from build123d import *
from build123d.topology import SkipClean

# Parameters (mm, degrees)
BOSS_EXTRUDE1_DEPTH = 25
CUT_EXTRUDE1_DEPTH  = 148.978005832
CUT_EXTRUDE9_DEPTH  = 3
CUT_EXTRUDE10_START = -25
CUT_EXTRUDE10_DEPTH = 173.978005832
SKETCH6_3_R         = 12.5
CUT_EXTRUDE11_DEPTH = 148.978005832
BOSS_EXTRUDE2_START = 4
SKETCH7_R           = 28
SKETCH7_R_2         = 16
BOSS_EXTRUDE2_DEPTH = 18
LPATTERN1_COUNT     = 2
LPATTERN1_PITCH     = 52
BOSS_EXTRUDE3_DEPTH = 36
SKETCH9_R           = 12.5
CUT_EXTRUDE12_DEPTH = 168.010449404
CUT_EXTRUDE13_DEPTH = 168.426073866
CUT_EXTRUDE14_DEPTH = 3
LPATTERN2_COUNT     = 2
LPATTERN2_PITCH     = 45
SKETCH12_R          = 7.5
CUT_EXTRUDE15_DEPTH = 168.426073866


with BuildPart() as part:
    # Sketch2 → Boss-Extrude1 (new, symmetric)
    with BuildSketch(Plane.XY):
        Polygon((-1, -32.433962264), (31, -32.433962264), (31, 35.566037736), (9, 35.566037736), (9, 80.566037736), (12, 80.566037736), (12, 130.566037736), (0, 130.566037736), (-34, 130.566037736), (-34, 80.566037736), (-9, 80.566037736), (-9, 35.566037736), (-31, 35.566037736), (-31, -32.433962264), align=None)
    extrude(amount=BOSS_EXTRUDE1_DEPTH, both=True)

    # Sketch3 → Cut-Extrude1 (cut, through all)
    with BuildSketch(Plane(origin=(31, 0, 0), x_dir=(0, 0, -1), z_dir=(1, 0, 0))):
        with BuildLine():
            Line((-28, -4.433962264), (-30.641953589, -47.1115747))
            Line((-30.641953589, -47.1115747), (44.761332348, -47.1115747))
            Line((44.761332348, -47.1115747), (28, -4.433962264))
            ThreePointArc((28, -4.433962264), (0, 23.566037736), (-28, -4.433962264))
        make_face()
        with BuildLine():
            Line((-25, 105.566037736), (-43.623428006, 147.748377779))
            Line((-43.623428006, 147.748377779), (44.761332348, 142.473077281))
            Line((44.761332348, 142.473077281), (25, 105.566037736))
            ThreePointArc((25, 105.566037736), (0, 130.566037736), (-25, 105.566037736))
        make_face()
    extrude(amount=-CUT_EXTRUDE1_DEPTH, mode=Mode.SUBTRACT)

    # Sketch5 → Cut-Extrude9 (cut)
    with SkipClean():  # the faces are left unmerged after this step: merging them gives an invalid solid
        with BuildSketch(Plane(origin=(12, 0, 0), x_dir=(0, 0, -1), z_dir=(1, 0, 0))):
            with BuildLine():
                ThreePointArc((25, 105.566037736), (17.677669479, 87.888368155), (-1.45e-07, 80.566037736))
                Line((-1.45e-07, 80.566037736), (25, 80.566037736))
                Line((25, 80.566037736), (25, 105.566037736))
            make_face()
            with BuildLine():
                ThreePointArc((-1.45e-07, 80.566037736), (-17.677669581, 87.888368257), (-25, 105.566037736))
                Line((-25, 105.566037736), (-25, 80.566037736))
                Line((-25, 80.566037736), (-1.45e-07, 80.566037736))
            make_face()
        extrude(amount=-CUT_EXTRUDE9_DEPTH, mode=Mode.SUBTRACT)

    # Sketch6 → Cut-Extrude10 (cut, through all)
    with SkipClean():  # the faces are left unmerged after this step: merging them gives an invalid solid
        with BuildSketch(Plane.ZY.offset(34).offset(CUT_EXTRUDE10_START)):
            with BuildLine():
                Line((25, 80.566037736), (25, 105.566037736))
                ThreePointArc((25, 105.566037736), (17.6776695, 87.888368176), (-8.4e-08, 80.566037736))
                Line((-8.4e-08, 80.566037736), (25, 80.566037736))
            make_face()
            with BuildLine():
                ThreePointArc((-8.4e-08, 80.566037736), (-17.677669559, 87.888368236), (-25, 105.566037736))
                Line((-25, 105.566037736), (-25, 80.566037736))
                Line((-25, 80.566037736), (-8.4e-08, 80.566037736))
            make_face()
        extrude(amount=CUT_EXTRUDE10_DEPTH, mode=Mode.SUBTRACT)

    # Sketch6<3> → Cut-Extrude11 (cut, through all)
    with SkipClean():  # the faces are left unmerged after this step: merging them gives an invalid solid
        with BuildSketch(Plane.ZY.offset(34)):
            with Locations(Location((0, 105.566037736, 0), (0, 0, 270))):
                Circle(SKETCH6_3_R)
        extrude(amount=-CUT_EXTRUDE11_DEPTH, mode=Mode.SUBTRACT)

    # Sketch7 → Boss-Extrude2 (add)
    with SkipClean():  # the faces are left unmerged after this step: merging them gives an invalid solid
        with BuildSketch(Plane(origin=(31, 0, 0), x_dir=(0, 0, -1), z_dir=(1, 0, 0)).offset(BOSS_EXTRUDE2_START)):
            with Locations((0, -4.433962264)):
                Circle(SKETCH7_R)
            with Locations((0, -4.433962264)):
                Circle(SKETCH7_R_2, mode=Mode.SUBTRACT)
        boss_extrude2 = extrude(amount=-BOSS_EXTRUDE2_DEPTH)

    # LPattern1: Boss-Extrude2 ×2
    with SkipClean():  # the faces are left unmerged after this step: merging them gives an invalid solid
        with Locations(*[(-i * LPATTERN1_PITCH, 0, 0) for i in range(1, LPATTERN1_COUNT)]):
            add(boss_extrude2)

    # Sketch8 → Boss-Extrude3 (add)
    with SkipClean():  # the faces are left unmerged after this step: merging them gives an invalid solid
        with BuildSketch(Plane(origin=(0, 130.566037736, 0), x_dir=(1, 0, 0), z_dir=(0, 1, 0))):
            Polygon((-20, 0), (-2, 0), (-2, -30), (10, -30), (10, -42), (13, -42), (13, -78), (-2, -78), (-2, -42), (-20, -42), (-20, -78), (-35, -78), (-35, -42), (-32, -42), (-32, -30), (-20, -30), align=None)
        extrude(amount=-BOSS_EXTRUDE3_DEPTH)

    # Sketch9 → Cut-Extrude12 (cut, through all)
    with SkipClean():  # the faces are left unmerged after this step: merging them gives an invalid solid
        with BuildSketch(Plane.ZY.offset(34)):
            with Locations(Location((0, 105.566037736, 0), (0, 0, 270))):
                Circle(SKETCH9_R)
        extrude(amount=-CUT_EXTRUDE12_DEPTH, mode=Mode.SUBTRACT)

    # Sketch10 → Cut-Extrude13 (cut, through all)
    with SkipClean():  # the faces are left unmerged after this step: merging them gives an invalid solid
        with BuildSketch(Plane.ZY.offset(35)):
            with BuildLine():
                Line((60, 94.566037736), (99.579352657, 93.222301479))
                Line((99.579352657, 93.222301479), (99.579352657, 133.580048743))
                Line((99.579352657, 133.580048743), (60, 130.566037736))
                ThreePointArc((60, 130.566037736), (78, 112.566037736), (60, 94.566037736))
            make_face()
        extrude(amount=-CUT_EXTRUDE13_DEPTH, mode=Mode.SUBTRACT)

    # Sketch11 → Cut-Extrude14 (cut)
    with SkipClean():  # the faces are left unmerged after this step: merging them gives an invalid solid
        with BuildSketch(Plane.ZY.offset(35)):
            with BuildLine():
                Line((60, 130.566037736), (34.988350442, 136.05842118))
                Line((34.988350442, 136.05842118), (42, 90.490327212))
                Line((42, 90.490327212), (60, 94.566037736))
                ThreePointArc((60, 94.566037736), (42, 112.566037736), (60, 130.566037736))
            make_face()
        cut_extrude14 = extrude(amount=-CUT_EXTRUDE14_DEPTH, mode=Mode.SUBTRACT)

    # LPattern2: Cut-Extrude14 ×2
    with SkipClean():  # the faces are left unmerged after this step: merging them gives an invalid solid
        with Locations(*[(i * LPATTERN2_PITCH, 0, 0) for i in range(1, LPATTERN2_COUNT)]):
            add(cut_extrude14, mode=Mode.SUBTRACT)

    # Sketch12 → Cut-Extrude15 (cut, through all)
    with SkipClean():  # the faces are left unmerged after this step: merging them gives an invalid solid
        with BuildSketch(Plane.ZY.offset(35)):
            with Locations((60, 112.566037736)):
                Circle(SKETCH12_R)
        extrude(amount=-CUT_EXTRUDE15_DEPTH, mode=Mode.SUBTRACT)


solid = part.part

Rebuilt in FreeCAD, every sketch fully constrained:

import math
import FreeCAD as App
import Part
import Sketcher
from FreeCAD import Vector
Q = App.Units.Quantity


def add_polygon(sketch, points):
    """Adds a closed chain of lines whose ends are joined by coincident constraints."""
    first, n = sketch.GeometryCount, len(points)
    for a, b in zip(points, points[1:] + points[:1]):
        sketch.addGeometry(Part.LineSegment(App.Vector(*a, 0), App.Vector(*b, 0)), False)
    for i in range(n):
        sketch.addConstraint(Sketcher.Constraint("Coincident", first + i, 2, first + (i + 1) % n, 1))

doc = App.newDocument("Part")
body = doc.addObject("PartDesign::Body", "Body")

# Sketch on XY plane
sketch1 = doc.addObject("Sketcher::SketchObject", "Sketch")
body.addObject(sketch1)
sketch1.AttachmentSupport = (doc.XY_Plane, [""])
sketch1.MapMode = "FlatFace"
add_polygon(sketch1, [(31, -32.4), (31, 35.6), (9, 35.6), (9, 80.6), (12, 80.6), (12, 130.6), (-34, 130.6), (-34, 80.6), (-9, 80.6), (-9, 35.6), (-31, 35.6), (-31, -32.4)])  # lines 0-11
sketch1.addConstraint(Sketcher.Constraint("Vertical", 0))
sketch1.addConstraint(Sketcher.Constraint("Horizontal", 1))
sketch1.addConstraint(Sketcher.Constraint("Vertical", 2))
sketch1.addConstraint(Sketcher.Constraint("Horizontal", 3))
sketch1.addConstraint(Sketcher.Constraint("Vertical", 4))
sketch1.addConstraint(Sketcher.Constraint("Horizontal", 5))
sketch1.addConstraint(Sketcher.Constraint("Vertical", 6))
sketch1.addConstraint(Sketcher.Constraint("Horizontal", 7))
sketch1.addConstraint(Sketcher.Constraint("Vertical", 8))
sketch1.addConstraint(Sketcher.Constraint("Horizontal", 9))
sketch1.addConstraint(Sketcher.Constraint("Vertical", 10))
sketch1.addConstraint(Sketcher.Constraint("Horizontal", 11))
sketch1.addConstraint(Sketcher.Constraint("Symmetric", 2, 2, 7, 2, -2))
sketch1.addConstraint(Sketcher.Constraint("Symmetric", 0, 2, 9, 2, -2))
sketch1.addConstraint(Sketcher.Constraint("DistanceX", 1, 2, 1, 1, Q("22 mm")))
sketch1.addConstraint(Sketcher.Constraint("DistanceX", 3, 1, 3, 2, Q("3 mm")))
sketch1.addConstraint(Sketcher.Constraint("DistanceX", 5, 2, 5, 1, Q("46 mm")))
sketch1.addConstraint(Sketcher.Constraint("DistanceX", 7, 1, 7, 2, Q("25 mm")))
sketch1.addConstraint(Sketcher.Constraint("DistanceY", 0, 1, 0, 2, Q("68 mm")))
sketch1.addConstraint(Sketcher.Constraint("DistanceY", 2, 1, 2, 2, Q("45 mm")))
sketch1.addConstraint(Sketcher.Constraint("DistanceY", 4, 1, 4, 2, Q("50 mm")))
sketch1.addConstraint(Sketcher.Constraint("DistanceY", -1, 1, 0, 2, Q("35.566038 mm")))
pad1 = doc.addObject("PartDesign::Pad", "Pad")
body.addObject(pad1)
pad1.Profile = sketch1
pad1.Length = 50
pad1.Midplane = True

# Sketch on YZ plane
sketch2 = doc.addObject("Sketcher::SketchObject", "Sketch001")
body.addObject(sketch2)
sketch2.AttachmentSupport = (doc.YZ_Plane, [""])
sketch2.MapMode = "FlatFace"
sketch2.AttachmentOffset = App.Placement(Vector(0, 0, 31), App.Rotation())
sketch2.addGeometry(Part.LineSegment(Vector(-4, 28, 0), Vector(-47, 31, 0)), False)
sketch2.addGeometry(Part.LineSegment(Vector(-47, 31, 0), Vector(-47, -45, 0)), False)
sketch2.addGeometry(Part.LineSegment(Vector(-47, -45, 0), Vector(-4, -28, 0)), False)
sketch2.addGeometry(Part.ArcOfCircle(Part.Circle(Vector(-4, 0, 0), Vector(0, 0, 1), 28), math.radians(-90), math.radians(90)), False)
sketch2.addGeometry(Part.LineSegment(Vector(148, 44, 0), Vector(106, 25, 0)), False)
sketch2.addGeometry(Part.ArcOfCircle(Part.Circle(Vector(106, 0, 0), Vector(0, 0, 1), 25), math.radians(-90), math.radians(90)), False)
sketch2.addGeometry(Part.LineSegment(Vector(106, -25, 0), Vector(142, -45, 0)), False)
sketch2.addGeometry(Part.LineSegment(Vector(142, -45, 0), Vector(148, 44, 0)), False)
sketch2.addConstraint(Sketcher.Constraint("Coincident", 0, 2, 1, 1))
sketch2.addConstraint(Sketcher.Constraint("Coincident", 1, 2, 2, 1))
sketch2.addConstraint(Sketcher.Constraint("Coincident", 2, 2, 3, 1))
sketch2.addConstraint(Sketcher.Constraint("Coincident", 3, 2, 0, 1))
sketch2.addConstraint(Sketcher.Constraint("Coincident", 4, 2, 5, 2))
sketch2.addConstraint(Sketcher.Constraint("Coincident", 5, 1, 6, 1))
sketch2.addConstraint(Sketcher.Constraint("Coincident", 6, 2, 7, 1))
sketch2.addConstraint(Sketcher.Constraint("Coincident", 7, 2, 4, 1))
sketch2.addConstraint(Sketcher.Constraint("Vertical", 1))
sketch2.addConstraint(Sketcher.Constraint("Symmetric", 2, 2, 3, 2, -1))
sketch2.addConstraint(Sketcher.Constraint("Symmetric", 4, 2, 5, 1, -1))
sketch2.addConstraint(Sketcher.Constraint("Horizontal", 1, 2, 6, 2))
sketch2.addConstraint(Sketcher.Constraint("Vertical", 3, 3, 2, 2))
sketch2.addConstraint(Sketcher.Constraint("Vertical", 5, 3, 4, 2))
sketch2.addConstraint(Sketcher.Constraint("Radius", 3, Q("28 mm")))
sketch2.addConstraint(Sketcher.Constraint("Radius", 5, Q("25 mm")))
sketch2.addConstraint(Sketcher.Constraint("DistanceX", 3, 3, 5, 3, Q("110 mm")))
sketch2.addConstraint(Sketcher.Constraint("DistanceX", 6, 2, 7, 2, Q("5.2753 mm")))
sketch2.addConstraint(Sketcher.Constraint("Distance", 0, Q("42.759309 mm")))
sketch2.addConstraint(Sketcher.Constraint("Distance", 4, Q("46.11054 mm")))
sketch2.addConstraint(Sketcher.Constraint("Distance", 6, Q("41.864541 mm")))
sketch2.addConstraint(Sketcher.Constraint("Distance", 7, Q("88.54205 mm")))
sketch2.addConstraint(Sketcher.Constraint("DistanceY", 1, 2, 1, 1, Q("75.403286 mm")))
sketch2.addConstraint(Sketcher.Constraint("DistanceX", 3, 3, -1, 1, Q("4.433962 mm")))
pocket1 = doc.addObject("PartDesign::Pocket", "Pocket")
body.addObject(pocket1)
pocket1.Profile = sketch2
pocket1.Type = "ThroughAll"

# Sketch on YZ plane
sketch3 = doc.addObject("Sketcher::SketchObject", "Sketch002")
body.addObject(sketch3)
sketch3.AttachmentSupport = (doc.YZ_Plane, [""])
sketch3.MapMode = "FlatFace"
sketch3.AttachmentOffset = App.Placement(Vector(0, 0, 12), App.Rotation())
sketch3.addGeometry(Part.ArcOfCircle(Part.Circle(Vector(106, 0, 0), Vector(0, 0, 1), 25), math.radians(180), math.radians(270)), False)
sketch3.addGeometry(Part.LineSegment(Vector(81, 0, 0), Vector(81, -25, 0)), False)
sketch3.addGeometry(Part.LineSegment(Vector(81, -25, 0), Vector(106, -25, 0)), False)
sketch3.addGeometry(Part.ArcOfCircle(Part.Circle(Vector(106, 0, 0), Vector(0, 0, 1), 25), math.radians(90), math.radians(180)), False)
sketch3.addGeometry(Part.LineSegment(Vector(106, 25, 0), Vector(81, 25, 0)), False)
sketch3.addGeometry(Part.LineSegment(Vector(81, 25, 0), Vector(81, 0, 0)), False)
sketch3.addConstraint(Sketcher.Constraint("Tangent", 0, 1, 1, 1))
sketch3.addConstraint(Sketcher.Constraint("Coincident", 1, 2, 2, 1))
sketch3.addConstraint(Sketcher.Constraint("Tangent", 2, 2, 0, 2))
sketch3.addConstraint(Sketcher.Constraint("Tangent", 3, 1, 4, 1))
sketch3.addConstraint(Sketcher.Constraint("Coincident", 4, 2, 5, 1))
sketch3.addConstraint(Sketcher.Constraint("Tangent", 5, 2, 3, 2))
sketch3.addConstraint(Sketcher.Constraint("Vertical", 1))
sketch3.addConstraint(Sketcher.Constraint("Horizontal", 2))
sketch3.addConstraint(Sketcher.Constraint("Horizontal", 4))
sketch3.addConstraint(Sketcher.Constraint("Vertical", 5))
sketch3.addConstraint(Sketcher.Constraint("Coincident", 3, 3, 0, 3))
sketch3.addConstraint(Sketcher.Constraint("Equal", 0, 3))
sketch3.addConstraint(Sketcher.Constraint("PointOnObject", 0, 3, -1))
sketch3.addConstraint(Sketcher.Constraint("Radius", 0, Q("25 mm")))
sketch3.addConstraint(Sketcher.Constraint("DistanceX", -1, 1, 0, 3, Q("105.566038 mm")))
pocket2 = doc.addObject("PartDesign::Pocket", "Pocket001")
body.addObject(pocket2)
pocket2.Profile = sketch3
pocket2.Length = 3

# Sketch on YZ plane
sketch4 = doc.addObject("Sketcher::SketchObject", "Sketch003")
body.addObject(sketch4)
sketch4.AttachmentSupport = (doc.YZ_Plane, [""])
sketch4.MapMode = "FlatFace"
sketch4.AttachmentOffset = App.Placement(Vector(0, 0, -9), App.Rotation())
sketch4.addGeometry(Part.LineSegment(Vector(81, 25, 0), Vector(106, 25, 0)), False)
sketch4.addGeometry(Part.ArcOfCircle(Part.Circle(Vector(106, 0, 0), Vector(0, 0, 1), 25), math.radians(90), math.radians(180)), False)
sketch4.addGeometry(Part.LineSegment(Vector(81, 0, 0), Vector(81, 25, 0)), False)
sketch4.addGeometry(Part.ArcOfCircle(Part.Circle(Vector(106, 0, 0), Vector(0, 0, 1), 25), math.radians(-180), math.radians(-90)), False)
sketch4.addGeometry(Part.LineSegment(Vector(106, -25, 0), Vector(81, -25, 0)), False)
sketch4.addGeometry(Part.LineSegment(Vector(81, -25, 0), Vector(81, 0, 0)), False)
sketch4.addConstraint(Sketcher.Constraint("Tangent", 0, 2, 1, 1))
sketch4.addConstraint(Sketcher.Constraint("Tangent", 1, 2, 2, 1))
sketch4.addConstraint(Sketcher.Constraint("Coincident", 2, 2, 0, 1))
sketch4.addConstraint(Sketcher.Constraint("Tangent", 3, 2, 4, 1))
sketch4.addConstraint(Sketcher.Constraint("Coincident", 4, 2, 5, 1))
sketch4.addConstraint(Sketcher.Constraint("Tangent", 5, 2, 3, 1))
sketch4.addConstraint(Sketcher.Constraint("Horizontal", 0))
sketch4.addConstraint(Sketcher.Constraint("Vertical", 2))
sketch4.addConstraint(Sketcher.Constraint("Horizontal", 4))
sketch4.addConstraint(Sketcher.Constraint("Vertical", 5))
sketch4.addConstraint(Sketcher.Constraint("Coincident", 3, 3, 1, 3))
sketch4.addConstraint(Sketcher.Constraint("Equal", 1, 3))
sketch4.addConstraint(Sketcher.Constraint("PointOnObject", 1, 3, -1))
sketch4.addConstraint(Sketcher.Constraint("Radius", 1, Q("25 mm")))
sketch4.addConstraint(Sketcher.Constraint("DistanceX", -1, 1, 1, 3, Q("105.566038 mm")))
pocket3 = doc.addObject("PartDesign::Pocket", "Pocket002")
body.addObject(pocket3)
pocket3.Profile = sketch4
pocket3.Type = "ThroughAll"

# Sketch on YZ plane
sketch5 = doc.addObject("Sketcher::SketchObject", "Sketch004")
body.addObject(sketch5)
sketch5.AttachmentSupport = (doc.YZ_Plane, [""])
sketch5.MapMode = "FlatFace"
sketch5.AttachmentOffset = App.Placement(Vector(0, 0, -34), App.Rotation())
sketch5.addGeometry(Part.Circle(Vector(106, 0, 0), Vector(0, 0, 1), 12), False)
sketch5.addConstraint(Sketcher.Constraint("PointOnObject", 0, 3, -1))
sketch5.addConstraint(Sketcher.Constraint("Diameter", 0, Q("25 mm")))
sketch5.addConstraint(Sketcher.Constraint("DistanceX", -1, 1, 0, 3, Q("105.566038 mm")))
pocket4 = doc.addObject("PartDesign::Pocket", "Pocket003")
body.addObject(pocket4)
pocket4.Profile = sketch5
pocket4.Type = "ThroughAll"
pocket4.Reversed = True

# Sketch on YZ plane
sketch6 = doc.addObject("Sketcher::SketchObject", "Sketch005")
body.addObject(sketch6)
sketch6.AttachmentSupport = (doc.YZ_Plane, [""])
sketch6.MapMode = "FlatFace"
sketch6.AttachmentOffset = App.Placement(Vector(0, 0, 35), App.Rotation())
sketch6.addGeometry(Part.Circle(Vector(-4, 0, 0), Vector(0, 0, 1), 28), False)
sketch6.addGeometry(Part.Circle(Vector(-4, 0, 0), Vector(0, 0, 1), 16), False)
sketch6.addConstraint(Sketcher.Constraint("Coincident", 1, 3, 0, 3))
sketch6.addConstraint(Sketcher.Constraint("PointOnObject", 0, 3, -1))
sketch6.addConstraint(Sketcher.Constraint("Diameter", 0, Q("56 mm")))
sketch6.addConstraint(Sketcher.Constraint("Diameter", 1, Q("32 mm")))
sketch6.addConstraint(Sketcher.Constraint("DistanceX", 0, 3, -1, 1, Q("4.433962 mm")))
pad2 = doc.addObject("PartDesign::Pad", "Pad001")
body.addObject(pad2)
pad2.Profile = sketch6
pad2.Length = 18
pad2.Reversed = True
doc.recompute()

linearpattern = doc.addObject("PartDesign::LinearPattern", "LinearPattern")
body.addObject(linearpattern)
linearpattern.Originals = [pad2]
linearpattern.Direction = (doc.X_Axis, [""])
linearpattern.Mode = "offset"
linearpattern.Offset = 52
linearpattern.Occurrences = 2
linearpattern.Reversed = True
body.Tip = linearpattern

# Sketch on XZ plane
sketch7 = doc.addObject("Sketcher::SketchObject", "Sketch006")
body.addObject(sketch7)
sketch7.AttachmentSupport = (doc.XZ_Plane, [""])
sketch7.MapMode = "FlatFace"
sketch7.AttachmentOffset = App.Placement(Vector(0, 0, -130.566038), App.Rotation())
add_polygon(sketch7, [(-2, 0), (-20, 0), (-20, 30), (-32, 30), (-32, 42), (-35, 42), (-35, 78), (-20, 78), (-20, 42), (-2, 42), (-2, 78), (13, 78), (13, 42), (10, 42), (10, 30), (-2, 30)])  # lines 0-15
sketch7.addConstraint(Sketcher.Constraint("Horizontal", 0))
sketch7.addConstraint(Sketcher.Constraint("Vertical", 1))
sketch7.addConstraint(Sketcher.Constraint("Horizontal", 2))
sketch7.addConstraint(Sketcher.Constraint("Vertical", 3))
sketch7.addConstraint(Sketcher.Constraint("Horizontal", 4))
sketch7.addConstraint(Sketcher.Constraint("Vertical", 5))
sketch7.addConstraint(Sketcher.Constraint("Horizontal", 6))
sketch7.addConstraint(Sketcher.Constraint("Vertical", 7))
sketch7.addConstraint(Sketcher.Constraint("Horizontal", 8))
sketch7.addConstraint(Sketcher.Constraint("Vertical", 9))
sketch7.addConstraint(Sketcher.Constraint("Horizontal", 10))
sketch7.addConstraint(Sketcher.Constraint("Vertical", 11))
sketch7.addConstraint(Sketcher.Constraint("Horizontal", 12))
sketch7.addConstraint(Sketcher.Constraint("Vertical", 13))
sketch7.addConstraint(Sketcher.Constraint("Horizontal", 14))
sketch7.addConstraint(Sketcher.Constraint("Vertical", 15))
sketch7.addConstraint(Sketcher.Constraint("PointOnObject", 0, 2, -1))
sketch7.addConstraint(Sketcher.Constraint("Horizontal", 4, 2, 7, 2))
sketch7.addConstraint(Sketcher.Constraint("Horizontal", 6, 2, 9, 2))
sketch7.addConstraint(Sketcher.Constraint("Horizontal", 8, 2, 11, 2))
sketch7.addConstraint(Sketcher.Constraint("Horizontal", 2, 2, 13, 2))
sketch7.addConstraint(Sketcher.Constraint("Vertical", 1, 2, 6, 2))
sketch7.addConstraint(Sketcher.Constraint("Vertical", 9, 2, 14, 2))
sketch7.addConstraint(Sketcher.Constraint("Equal", 6, 10))
sketch7.addConstraint(Sketcher.Constraint("Equal", 4, 12))
sketch7.addConstraint(Sketcher.Constraint("Equal", 14, 3))
sketch7.addConstraint(Sketcher.Constraint("DistanceX", 0, 2, 0, 1, Q("18 mm")))
sketch7.addConstraint(Sketcher.Constraint("DistanceX", 2, 2, 2, 1, Q("12 mm")))
sketch7.addConstraint(Sketcher.Constraint("DistanceX", 4, 2, 4, 1, Q("3 mm")))
sketch7.addConstraint(Sketcher.Constraint("DistanceY", 1, 1, 1, 2, Q("30 mm")))
sketch7.addConstraint(Sketcher.Constraint("DistanceY", 5, 1, 5, 2, Q("36 mm")))
sketch7.addConstraint(Sketcher.Constraint("DistanceX", 0, 2, -1, 1, Q("20 mm")))
pad3 = doc.addObject("PartDesign::Pad", "Pad002")
body.addObject(pad3)
pad3.Profile = sketch7
pad3.Length = 36

# Sketch on YZ plane
sketch8 = doc.addObject("Sketcher::SketchObject", "Sketch007")
body.addObject(sketch8)
sketch8.AttachmentSupport = (doc.YZ_Plane, [""])
sketch8.MapMode = "FlatFace"
sketch8.AttachmentOffset = App.Placement(Vector(0, 0, -34), App.Rotation())
sketch8.addGeometry(Part.Circle(Vector(106, 0, 0), Vector(0, 0, 1), 12), False)
sketch8.addConstraint(Sketcher.Constraint("PointOnObject", 0, 3, -1))
sketch8.addConstraint(Sketcher.Constraint("Diameter", 0, Q("25 mm")))
sketch8.addConstraint(Sketcher.Constraint("DistanceX", -1, 1, 0, 3, Q("105.566038 mm")))
pocket5 = doc.addObject("PartDesign::Pocket", "Pocket004")
body.addObject(pocket5)
pocket5.Profile = sketch8
pocket5.Type = "ThroughAll"
pocket5.Reversed = True

# Sketch on YZ plane
sketch9 = doc.addObject("Sketcher::SketchObject", "Sketch008")
body.addObject(sketch9)
sketch9.AttachmentSupport = (doc.YZ_Plane, [""])
sketch9.MapMode = "FlatFace"
sketch9.AttachmentOffset = App.Placement(Vector(0, 0, -35), App.Rotation())
sketch9.addGeometry(Part.LineSegment(Vector(95, 60, 0), Vector(93, 100, 0)), False)
sketch9.addGeometry(Part.LineSegment(Vector(93, 100, 0), Vector(134, 100, 0)), False)
sketch9.addGeometry(Part.LineSegment(Vector(134, 100, 0), Vector(131, 60, 0)), False)
sketch9.addGeometry(Part.ArcOfCircle(Part.Circle(Vector(113, 60, 0), Vector(0, 0, 1), 18), math.radians(0), math.radians(180)), False)
sketch9.addConstraint(Sketcher.Constraint("Coincident", 0, 2, 1, 1))
sketch9.addConstraint(Sketcher.Constraint("Coincident", 1, 2, 2, 1))
sketch9.addConstraint(Sketcher.Constraint("Coincident", 2, 2, 3, 1))
sketch9.addConstraint(Sketcher.Constraint("Coincident", 3, 2, 0, 1))
sketch9.addConstraint(Sketcher.Constraint("Horizontal", 1))
sketch9.addConstraint(Sketcher.Constraint("Horizontal", 3, 3, 2, 2))
sketch9.addConstraint(Sketcher.Constraint("Horizontal", 2, 2, 3, 2))
sketch9.addConstraint(Sketcher.Constraint("Radius", 3, Q("18 mm")))
sketch9.addConstraint(Sketcher.Constraint("DistanceY", -1, 1, 3, 3, Q("60 mm")))
sketch9.addConstraint(Sketcher.Constraint("DistanceX", -1, 1, 0, 2, Q("93.222301 mm")))
sketch9.addConstraint(Sketcher.Constraint("DistanceX", 1, 1, 1, 2, Q("40.357747 mm")))
sketch9.addConstraint(Sketcher.Constraint("DistanceX", 3, 3, 1, 2, Q("21.014011 mm")))
sketch9.addConstraint(Sketcher.Constraint("Distance", 0, Q("39.602156 mm")))
pocket6 = doc.addObject("PartDesign::Pocket", "Pocket005")
body.addObject(pocket6)
pocket6.Profile = sketch9
pocket6.Type = "ThroughAll"
pocket6.Reversed = True

# Sketch on YZ plane
sketch10 = doc.addObject("Sketcher::SketchObject", "Sketch009")
body.addObject(sketch10)
sketch10.AttachmentSupport = (doc.YZ_Plane, [""])
sketch10.MapMode = "FlatFace"
sketch10.AttachmentOffset = App.Placement(Vector(0, 0, -35), App.Rotation())
sketch10.addGeometry(Part.LineSegment(Vector(131, 60, 0), Vector(136, 35, 0)), False)
sketch10.addGeometry(Part.LineSegment(Vector(136, 35, 0), Vector(90, 42, 0)), False)
sketch10.addGeometry(Part.LineSegment(Vector(90, 42, 0), Vector(95, 60, 0)), False)
sketch10.addGeometry(Part.ArcOfCircle(Part.Circle(Vector(113, 60, 0), Vector(0, 0, 1), 18), math.radians(180), math.radians(360)), False)
sketch10.addConstraint(Sketcher.Constraint("Coincident", 0, 2, 1, 1))
sketch10.addConstraint(Sketcher.Constraint("Coincident", 1, 2, 2, 1))
sketch10.addConstraint(Sketcher.Constraint("Coincident", 2, 2, 3, 1))
sketch10.addConstraint(Sketcher.Constraint("Coincident", 3, 2, 0, 1))
sketch10.addConstraint(Sketcher.Constraint("Horizontal", 3, 3, 2, 2))
sketch10.addConstraint(Sketcher.Constraint("Horizontal", 2, 2, 3, 2))
sketch10.addConstraint(Sketcher.Constraint("Radius", 3, Q("18 mm")))
sketch10.addConstraint(Sketcher.Constraint("DistanceY", -1, 1, 3, 3, Q("60 mm")))
sketch10.addConstraint(Sketcher.Constraint("DistanceY", -1, 1, 1, 2, Q("42 mm")))
sketch10.addConstraint(Sketcher.Constraint("Distance", 2, Q("18.455661 mm")))
sketch10.addConstraint(Sketcher.Constraint("DistanceX", -1, 1, 0, 2, Q("136.058421 mm")))
sketch10.addConstraint(Sketcher.Constraint("DistanceY", -1, 1, 0, 2, Q("34.98835 mm")))
sketch10.addConstraint(Sketcher.Constraint("Distance", 0, Q("25.607594 mm")))
pocket7 = doc.addObject("PartDesign::Pocket", "Pocket006")
body.addObject(pocket7)
pocket7.Profile = sketch10
pocket7.Length = 3
pocket7.Reversed = True
doc.recompute()

linearpattern2 = doc.addObject("PartDesign::LinearPattern", "LinearPattern001")
body.addObject(linearpattern2)
linearpattern2.Originals = [pocket7]
linearpattern2.Direction = (doc.X_Axis, [""])
linearpattern2.Mode = "offset"
linearpattern2.Offset = 45
linearpattern2.Occurrences = 2
body.Tip = linearpattern2

# Sketch on YZ plane
sketch11 = doc.addObject("Sketcher::SketchObject", "Sketch010")
body.addObject(sketch11)
sketch11.AttachmentSupport = (doc.YZ_Plane, [""])
sketch11.MapMode = "FlatFace"
sketch11.AttachmentOffset = App.Placement(Vector(0, 0, -35), App.Rotation())
sketch11.addGeometry(Part.Circle(Vector(113, 60, 0), Vector(0, 0, 1), 8), False)
sketch11.addConstraint(Sketcher.Constraint("Diameter", 0, Q("15 mm")))
sketch11.addConstraint(Sketcher.Constraint("DistanceY", -1, 1, 0, 3, Q("60 mm")))
sketch11.addConstraint(Sketcher.Constraint("DistanceX", -1, 1, 0, 3, Q("112.566038 mm")))
pocket8 = doc.addObject("PartDesign::Pocket", "Pocket007")
body.addObject(pocket8)
pocket8.Profile = sketch11
pocket8.Type = "ThroughAll"
pocket8.Reversed = True

doc.recompute()
